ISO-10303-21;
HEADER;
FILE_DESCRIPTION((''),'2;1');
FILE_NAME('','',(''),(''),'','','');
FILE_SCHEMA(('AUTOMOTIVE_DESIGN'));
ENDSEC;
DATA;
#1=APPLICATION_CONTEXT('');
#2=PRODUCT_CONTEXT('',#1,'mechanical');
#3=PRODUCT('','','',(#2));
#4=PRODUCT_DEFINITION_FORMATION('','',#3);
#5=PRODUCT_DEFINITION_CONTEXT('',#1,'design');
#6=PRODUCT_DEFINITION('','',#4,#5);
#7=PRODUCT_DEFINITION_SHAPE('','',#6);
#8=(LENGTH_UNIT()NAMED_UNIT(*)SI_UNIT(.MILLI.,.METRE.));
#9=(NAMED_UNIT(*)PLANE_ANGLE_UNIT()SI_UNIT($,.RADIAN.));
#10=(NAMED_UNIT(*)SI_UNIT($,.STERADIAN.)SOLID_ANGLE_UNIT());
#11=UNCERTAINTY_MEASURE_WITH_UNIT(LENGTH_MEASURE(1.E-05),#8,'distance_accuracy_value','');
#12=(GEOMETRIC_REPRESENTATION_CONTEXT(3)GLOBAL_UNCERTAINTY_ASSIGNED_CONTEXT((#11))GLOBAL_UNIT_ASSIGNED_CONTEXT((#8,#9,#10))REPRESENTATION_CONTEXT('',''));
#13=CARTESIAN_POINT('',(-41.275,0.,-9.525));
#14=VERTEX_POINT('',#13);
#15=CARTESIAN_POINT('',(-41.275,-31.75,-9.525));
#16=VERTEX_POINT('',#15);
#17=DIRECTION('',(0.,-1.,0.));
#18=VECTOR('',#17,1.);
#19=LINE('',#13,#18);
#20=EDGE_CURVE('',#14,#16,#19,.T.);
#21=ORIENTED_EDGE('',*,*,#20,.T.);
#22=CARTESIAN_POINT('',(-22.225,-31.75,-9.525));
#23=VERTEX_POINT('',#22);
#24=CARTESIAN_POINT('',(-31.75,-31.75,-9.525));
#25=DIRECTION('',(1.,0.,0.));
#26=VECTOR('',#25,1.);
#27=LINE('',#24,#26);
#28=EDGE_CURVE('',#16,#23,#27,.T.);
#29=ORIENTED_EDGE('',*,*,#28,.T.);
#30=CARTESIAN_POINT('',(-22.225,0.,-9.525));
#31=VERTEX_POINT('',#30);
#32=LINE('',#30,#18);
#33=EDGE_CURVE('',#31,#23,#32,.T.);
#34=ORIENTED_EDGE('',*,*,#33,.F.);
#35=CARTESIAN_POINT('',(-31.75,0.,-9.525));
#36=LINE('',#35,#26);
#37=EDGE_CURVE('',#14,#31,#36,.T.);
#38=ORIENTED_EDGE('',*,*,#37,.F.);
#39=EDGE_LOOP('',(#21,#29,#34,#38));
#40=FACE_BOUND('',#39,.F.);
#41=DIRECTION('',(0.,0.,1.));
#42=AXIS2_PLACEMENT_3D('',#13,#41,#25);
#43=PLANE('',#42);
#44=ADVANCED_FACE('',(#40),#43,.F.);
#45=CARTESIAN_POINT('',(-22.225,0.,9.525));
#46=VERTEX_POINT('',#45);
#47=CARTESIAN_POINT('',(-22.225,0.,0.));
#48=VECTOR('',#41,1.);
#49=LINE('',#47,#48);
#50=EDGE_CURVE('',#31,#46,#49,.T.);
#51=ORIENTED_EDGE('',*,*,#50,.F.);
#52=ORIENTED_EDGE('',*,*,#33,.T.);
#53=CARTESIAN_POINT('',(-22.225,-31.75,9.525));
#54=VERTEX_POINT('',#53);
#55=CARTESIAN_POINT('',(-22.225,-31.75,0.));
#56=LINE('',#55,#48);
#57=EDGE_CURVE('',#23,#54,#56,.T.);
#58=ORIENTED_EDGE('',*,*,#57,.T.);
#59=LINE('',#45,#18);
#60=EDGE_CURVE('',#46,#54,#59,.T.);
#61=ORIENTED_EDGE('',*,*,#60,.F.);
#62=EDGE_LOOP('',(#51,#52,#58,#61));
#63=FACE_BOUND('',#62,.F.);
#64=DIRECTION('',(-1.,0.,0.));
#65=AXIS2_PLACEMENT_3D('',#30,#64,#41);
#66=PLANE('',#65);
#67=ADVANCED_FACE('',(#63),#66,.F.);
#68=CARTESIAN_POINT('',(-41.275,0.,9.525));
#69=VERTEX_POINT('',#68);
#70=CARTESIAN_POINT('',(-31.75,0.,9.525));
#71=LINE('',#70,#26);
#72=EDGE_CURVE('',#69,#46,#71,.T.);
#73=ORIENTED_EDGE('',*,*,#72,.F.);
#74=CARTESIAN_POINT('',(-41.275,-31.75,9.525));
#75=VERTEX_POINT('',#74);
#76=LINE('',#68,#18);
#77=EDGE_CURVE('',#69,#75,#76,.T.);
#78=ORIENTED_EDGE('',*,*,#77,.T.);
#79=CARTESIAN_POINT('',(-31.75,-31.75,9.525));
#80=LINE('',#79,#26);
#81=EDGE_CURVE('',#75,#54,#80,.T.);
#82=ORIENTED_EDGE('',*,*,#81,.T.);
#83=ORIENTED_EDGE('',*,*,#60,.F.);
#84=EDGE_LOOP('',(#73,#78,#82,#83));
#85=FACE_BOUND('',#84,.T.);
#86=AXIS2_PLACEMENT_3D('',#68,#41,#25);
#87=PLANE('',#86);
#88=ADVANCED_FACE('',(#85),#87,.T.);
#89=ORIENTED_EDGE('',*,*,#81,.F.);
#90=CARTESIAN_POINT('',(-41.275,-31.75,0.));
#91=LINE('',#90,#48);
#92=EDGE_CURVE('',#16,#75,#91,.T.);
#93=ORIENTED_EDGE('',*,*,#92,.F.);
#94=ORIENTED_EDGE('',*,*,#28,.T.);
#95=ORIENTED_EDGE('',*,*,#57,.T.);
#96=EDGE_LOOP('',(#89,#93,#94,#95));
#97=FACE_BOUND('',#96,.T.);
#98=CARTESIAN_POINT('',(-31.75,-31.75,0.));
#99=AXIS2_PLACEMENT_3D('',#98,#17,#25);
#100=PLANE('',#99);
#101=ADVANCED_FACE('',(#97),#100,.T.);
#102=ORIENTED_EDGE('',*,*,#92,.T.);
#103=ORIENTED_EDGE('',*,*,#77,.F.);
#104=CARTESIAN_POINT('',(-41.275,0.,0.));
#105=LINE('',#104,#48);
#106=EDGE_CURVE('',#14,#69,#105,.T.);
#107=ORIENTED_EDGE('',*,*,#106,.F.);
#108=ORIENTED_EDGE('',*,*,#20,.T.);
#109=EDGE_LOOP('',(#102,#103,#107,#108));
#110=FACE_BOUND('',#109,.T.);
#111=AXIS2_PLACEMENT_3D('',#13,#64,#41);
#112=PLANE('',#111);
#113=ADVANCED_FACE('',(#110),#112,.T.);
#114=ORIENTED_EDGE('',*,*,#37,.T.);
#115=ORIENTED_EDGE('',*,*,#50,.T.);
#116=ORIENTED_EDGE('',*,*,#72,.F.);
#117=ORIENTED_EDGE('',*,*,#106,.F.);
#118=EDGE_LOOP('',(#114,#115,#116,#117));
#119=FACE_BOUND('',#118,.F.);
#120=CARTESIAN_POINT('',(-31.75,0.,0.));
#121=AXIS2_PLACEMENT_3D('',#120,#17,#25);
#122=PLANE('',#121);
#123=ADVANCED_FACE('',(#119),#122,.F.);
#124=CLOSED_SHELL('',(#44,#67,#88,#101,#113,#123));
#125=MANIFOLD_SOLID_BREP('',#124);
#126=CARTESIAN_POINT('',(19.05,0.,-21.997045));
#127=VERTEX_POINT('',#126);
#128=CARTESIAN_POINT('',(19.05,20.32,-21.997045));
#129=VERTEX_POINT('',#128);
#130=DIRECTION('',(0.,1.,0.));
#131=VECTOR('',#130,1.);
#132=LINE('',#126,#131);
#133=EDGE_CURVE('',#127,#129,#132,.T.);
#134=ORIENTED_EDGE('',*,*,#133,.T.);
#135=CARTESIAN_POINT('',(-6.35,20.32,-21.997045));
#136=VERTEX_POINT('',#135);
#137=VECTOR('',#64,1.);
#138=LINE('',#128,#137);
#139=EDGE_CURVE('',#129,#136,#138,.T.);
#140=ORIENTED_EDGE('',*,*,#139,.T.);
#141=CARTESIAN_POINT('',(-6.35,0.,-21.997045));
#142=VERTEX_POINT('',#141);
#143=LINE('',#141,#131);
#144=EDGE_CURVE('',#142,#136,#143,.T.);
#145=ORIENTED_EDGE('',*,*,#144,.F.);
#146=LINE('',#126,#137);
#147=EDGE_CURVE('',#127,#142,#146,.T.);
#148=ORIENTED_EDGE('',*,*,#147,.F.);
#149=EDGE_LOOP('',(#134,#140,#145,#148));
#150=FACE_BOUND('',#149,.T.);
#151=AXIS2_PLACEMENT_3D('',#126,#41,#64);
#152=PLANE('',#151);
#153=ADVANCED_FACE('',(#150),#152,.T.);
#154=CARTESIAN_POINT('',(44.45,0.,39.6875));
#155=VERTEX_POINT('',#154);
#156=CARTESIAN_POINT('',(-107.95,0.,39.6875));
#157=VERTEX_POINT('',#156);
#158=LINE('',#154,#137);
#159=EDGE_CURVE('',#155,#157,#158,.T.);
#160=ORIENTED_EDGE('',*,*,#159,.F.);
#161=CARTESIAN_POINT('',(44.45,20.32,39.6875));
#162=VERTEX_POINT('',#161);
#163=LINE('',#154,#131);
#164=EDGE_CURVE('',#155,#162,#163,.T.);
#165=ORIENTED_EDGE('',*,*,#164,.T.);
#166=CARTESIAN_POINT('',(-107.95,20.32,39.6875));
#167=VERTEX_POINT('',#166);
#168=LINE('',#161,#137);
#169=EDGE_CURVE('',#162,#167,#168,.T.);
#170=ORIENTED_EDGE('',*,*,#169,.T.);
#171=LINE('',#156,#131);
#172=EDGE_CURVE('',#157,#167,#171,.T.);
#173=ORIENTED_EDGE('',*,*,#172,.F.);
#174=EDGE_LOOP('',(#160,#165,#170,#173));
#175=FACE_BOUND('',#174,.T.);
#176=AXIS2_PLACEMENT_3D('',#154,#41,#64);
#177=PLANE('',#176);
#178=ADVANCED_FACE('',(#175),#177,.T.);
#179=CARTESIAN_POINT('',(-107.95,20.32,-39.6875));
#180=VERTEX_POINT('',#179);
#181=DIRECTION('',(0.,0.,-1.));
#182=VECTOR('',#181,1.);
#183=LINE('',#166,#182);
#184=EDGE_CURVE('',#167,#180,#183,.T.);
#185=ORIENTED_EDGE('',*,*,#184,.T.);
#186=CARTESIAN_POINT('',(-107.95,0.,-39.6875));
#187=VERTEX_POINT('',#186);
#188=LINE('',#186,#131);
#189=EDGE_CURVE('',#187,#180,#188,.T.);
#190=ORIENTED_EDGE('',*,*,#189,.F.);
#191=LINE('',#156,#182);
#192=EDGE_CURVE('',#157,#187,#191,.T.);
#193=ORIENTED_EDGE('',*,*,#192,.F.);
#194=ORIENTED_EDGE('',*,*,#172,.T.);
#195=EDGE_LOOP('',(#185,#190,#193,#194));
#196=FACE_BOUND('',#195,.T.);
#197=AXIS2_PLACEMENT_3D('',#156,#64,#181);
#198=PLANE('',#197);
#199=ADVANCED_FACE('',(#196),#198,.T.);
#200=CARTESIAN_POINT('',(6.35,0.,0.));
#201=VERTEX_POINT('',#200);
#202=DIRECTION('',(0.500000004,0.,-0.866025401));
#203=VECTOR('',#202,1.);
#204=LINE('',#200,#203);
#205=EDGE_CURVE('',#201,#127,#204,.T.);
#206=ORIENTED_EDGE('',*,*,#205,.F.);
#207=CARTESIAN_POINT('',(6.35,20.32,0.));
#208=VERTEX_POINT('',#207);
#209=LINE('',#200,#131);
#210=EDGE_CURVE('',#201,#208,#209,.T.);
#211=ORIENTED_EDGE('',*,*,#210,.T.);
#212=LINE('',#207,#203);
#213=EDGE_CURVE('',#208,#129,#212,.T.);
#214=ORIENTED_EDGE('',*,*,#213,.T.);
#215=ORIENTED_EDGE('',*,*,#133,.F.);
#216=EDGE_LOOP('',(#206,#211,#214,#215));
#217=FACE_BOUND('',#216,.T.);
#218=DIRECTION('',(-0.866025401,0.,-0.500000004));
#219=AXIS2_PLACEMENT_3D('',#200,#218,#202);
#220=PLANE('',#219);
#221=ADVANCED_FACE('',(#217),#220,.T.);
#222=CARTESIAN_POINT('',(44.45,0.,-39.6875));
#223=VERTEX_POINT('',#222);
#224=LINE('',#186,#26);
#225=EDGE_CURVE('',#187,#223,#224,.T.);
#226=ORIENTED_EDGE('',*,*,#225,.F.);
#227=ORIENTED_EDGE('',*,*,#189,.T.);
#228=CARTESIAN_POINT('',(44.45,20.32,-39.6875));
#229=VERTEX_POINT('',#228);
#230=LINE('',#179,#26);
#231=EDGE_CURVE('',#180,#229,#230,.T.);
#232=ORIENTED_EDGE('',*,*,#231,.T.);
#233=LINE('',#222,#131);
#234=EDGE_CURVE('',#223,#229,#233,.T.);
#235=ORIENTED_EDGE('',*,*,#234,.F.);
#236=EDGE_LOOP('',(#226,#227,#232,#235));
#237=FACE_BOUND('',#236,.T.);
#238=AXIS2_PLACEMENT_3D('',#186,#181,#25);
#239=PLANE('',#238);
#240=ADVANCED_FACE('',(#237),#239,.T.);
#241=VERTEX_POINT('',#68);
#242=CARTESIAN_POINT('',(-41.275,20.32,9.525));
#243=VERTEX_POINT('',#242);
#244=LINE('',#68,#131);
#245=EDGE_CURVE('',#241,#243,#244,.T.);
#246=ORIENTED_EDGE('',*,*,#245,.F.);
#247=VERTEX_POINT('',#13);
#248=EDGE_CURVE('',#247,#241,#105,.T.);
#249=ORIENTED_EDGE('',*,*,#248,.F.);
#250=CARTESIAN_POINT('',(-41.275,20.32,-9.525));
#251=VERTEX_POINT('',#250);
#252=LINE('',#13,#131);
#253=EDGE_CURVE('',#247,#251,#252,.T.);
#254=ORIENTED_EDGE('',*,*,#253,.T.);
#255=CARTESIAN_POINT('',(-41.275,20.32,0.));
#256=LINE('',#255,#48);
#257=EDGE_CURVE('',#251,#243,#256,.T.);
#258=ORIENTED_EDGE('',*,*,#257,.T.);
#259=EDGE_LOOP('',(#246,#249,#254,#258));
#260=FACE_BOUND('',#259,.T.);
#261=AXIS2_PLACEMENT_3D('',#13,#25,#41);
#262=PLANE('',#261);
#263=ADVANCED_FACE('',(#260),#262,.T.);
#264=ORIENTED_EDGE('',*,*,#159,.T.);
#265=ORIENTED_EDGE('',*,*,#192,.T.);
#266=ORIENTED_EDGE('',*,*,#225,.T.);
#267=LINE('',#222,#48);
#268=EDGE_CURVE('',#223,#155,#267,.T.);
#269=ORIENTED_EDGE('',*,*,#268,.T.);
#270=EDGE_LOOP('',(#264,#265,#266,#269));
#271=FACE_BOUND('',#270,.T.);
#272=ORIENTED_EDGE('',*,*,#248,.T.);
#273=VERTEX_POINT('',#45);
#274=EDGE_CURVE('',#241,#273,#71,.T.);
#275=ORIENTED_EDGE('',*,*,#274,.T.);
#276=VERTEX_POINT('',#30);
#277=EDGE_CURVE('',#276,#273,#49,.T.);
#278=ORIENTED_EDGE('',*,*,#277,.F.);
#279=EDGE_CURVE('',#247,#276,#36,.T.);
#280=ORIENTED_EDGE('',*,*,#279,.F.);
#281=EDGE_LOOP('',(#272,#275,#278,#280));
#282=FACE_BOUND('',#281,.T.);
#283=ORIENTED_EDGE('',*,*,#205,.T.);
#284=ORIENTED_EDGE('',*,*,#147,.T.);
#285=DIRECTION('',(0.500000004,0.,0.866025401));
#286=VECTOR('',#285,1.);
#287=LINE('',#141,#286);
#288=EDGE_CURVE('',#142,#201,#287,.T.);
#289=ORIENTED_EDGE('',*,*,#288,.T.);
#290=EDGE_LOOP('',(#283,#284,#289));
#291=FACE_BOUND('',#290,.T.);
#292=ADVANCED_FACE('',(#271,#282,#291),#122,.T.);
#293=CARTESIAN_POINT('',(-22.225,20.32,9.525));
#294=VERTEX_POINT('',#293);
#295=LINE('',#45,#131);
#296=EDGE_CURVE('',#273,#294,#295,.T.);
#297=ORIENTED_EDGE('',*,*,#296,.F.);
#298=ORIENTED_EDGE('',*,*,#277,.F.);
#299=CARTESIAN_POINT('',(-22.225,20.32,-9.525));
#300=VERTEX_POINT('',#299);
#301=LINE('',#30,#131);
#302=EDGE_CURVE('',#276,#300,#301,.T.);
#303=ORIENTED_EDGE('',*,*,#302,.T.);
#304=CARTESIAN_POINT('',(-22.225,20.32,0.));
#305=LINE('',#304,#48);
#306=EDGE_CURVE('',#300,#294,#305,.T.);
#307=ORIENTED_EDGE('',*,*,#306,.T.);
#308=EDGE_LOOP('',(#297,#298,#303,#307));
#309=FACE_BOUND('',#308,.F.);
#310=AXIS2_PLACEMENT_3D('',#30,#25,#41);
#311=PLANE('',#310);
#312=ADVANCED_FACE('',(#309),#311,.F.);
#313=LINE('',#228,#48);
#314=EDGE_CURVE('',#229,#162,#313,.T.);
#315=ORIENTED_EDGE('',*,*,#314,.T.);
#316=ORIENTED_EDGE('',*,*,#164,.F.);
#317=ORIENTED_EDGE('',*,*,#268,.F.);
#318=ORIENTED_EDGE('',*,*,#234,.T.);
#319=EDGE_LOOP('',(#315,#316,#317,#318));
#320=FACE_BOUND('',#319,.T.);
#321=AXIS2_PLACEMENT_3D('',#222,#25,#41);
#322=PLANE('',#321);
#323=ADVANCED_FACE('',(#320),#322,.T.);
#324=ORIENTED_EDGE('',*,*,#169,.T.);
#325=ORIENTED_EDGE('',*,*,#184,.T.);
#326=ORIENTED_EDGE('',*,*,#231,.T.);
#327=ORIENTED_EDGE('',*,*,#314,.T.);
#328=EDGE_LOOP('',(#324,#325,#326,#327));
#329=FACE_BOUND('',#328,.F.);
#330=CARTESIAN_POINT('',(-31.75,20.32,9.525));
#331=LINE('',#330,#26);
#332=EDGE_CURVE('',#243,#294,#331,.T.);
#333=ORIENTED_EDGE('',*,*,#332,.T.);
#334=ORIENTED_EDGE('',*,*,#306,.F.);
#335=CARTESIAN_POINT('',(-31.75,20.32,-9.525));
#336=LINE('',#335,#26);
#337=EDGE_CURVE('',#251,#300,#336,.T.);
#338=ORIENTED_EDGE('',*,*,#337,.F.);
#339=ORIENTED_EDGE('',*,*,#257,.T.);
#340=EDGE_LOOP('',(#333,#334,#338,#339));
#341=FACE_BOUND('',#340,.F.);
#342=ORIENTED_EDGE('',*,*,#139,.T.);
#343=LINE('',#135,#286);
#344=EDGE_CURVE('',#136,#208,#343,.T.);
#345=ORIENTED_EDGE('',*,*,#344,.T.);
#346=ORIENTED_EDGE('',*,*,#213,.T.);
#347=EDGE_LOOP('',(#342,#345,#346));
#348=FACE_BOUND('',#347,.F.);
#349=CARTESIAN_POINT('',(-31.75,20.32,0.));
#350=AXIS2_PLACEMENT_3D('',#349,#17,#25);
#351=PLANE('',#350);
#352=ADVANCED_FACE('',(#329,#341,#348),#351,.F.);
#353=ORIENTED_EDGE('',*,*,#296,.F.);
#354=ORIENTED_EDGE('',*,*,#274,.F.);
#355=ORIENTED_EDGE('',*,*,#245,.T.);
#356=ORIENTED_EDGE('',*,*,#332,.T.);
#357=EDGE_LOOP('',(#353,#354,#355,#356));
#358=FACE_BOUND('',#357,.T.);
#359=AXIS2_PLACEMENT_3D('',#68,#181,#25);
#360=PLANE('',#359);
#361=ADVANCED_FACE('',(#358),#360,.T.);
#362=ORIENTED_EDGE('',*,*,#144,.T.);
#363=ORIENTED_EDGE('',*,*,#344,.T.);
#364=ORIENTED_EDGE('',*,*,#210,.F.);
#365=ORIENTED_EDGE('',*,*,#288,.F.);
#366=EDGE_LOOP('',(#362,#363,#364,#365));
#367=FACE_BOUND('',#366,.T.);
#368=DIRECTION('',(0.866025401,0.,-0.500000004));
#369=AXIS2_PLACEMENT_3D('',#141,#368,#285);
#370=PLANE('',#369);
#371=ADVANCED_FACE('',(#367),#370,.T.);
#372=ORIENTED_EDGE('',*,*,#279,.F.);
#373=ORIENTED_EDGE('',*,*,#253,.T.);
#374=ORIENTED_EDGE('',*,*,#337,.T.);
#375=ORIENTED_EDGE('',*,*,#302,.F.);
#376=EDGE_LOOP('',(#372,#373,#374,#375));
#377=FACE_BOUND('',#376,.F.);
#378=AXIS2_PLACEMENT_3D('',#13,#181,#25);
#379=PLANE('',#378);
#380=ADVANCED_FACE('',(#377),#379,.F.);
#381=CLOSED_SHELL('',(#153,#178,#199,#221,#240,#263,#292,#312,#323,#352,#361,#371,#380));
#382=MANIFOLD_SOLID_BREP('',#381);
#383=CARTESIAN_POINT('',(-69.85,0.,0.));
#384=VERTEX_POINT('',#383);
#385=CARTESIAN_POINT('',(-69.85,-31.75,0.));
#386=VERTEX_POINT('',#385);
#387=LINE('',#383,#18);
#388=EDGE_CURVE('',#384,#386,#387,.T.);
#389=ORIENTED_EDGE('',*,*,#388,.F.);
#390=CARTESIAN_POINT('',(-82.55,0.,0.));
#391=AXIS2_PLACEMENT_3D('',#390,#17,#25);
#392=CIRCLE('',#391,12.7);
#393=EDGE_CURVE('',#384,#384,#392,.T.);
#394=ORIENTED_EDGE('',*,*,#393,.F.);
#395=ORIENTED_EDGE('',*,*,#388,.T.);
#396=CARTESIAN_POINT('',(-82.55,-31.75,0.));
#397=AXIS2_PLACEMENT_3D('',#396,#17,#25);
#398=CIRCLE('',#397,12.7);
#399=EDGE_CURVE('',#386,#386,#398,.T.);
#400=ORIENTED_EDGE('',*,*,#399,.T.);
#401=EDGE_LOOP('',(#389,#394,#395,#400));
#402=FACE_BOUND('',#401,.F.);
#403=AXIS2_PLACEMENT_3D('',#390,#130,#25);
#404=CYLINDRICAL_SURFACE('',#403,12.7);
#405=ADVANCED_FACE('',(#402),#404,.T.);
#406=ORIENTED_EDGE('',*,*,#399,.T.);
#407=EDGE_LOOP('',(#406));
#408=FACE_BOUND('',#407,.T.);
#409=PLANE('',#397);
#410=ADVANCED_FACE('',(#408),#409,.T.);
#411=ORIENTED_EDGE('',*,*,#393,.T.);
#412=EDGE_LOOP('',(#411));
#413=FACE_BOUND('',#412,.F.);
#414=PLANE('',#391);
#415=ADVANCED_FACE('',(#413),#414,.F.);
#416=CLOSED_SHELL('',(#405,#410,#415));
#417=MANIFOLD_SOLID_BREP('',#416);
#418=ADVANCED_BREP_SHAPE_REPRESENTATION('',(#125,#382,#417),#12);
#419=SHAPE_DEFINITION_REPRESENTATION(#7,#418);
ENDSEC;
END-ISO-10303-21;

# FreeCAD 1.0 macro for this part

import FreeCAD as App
import Part
import Sketcher
from FreeCAD import Vector
Q = App.Units.Quantity


def add_polygon(sketch, points):
    """Adds a closed chain of lines whose ends are joined by coincident constraints."""
    first, n = sketch.GeometryCount, len(points)
    for a, b in zip(points, points[1:] + points[:1]):
        sketch.addGeometry(Part.LineSegment(App.Vector(*a, 0), App.Vector(*b, 0)), False)
    for i in range(n):
        sketch.addConstraint(Sketcher.Constraint("Coincident", first + i, 2, first + (i + 1) % n, 1))

doc = App.newDocument("Part")
body = doc.addObject("PartDesign::Body", "Body")

sketch1 = body.newObject("Sketcher::SketchObject", "Sketch")
sketch1.AttachmentSupport = (doc.getObject("XZ_Plane"), [""])
sketch1.MapMode = "FlatFace"
add_polygon(sketch1, [(44, -40), (44, 40), (-108, 40), (-108, -40)])
add_polygon(sketch1, [(19, -22), (-6, -22), (6, 0)])
add_polygon(sketch1, [(-22, -10), (-41, -10), (-41, 10), (-22, 10)])
sketch1.addConstraint([
    Sketcher.Constraint("Vertical", 0),
    Sketcher.Constraint("Horizontal", 1),
    Sketcher.Constraint("Vertical", 2),
    Sketcher.Constraint("Horizontal", 3),
    Sketcher.Constraint("Horizontal", 4),
    Sketcher.Constraint("Horizontal", 7),
    Sketcher.Constraint("Vertical", 8),
    Sketcher.Constraint("Horizontal", 9),
    Sketcher.Constraint("Vertical", 10),
    Sketcher.Constraint("PointOnObject", 5, 2, -1),
    Sketcher.Constraint("Equal", 9, 8),
    Sketcher.Constraint("Equal", 5, 6),
    Sketcher.Constraint("DistanceX", 1, 2, 1, 1, Q("6 in")),
    Sketcher.Constraint("DistanceX", 4, 2, 4, 1, Q("1 in")),
    Sketcher.Constraint("Distance", 5, Q("1 in")),
    Sketcher.Constraint("DistanceX", 4, 2, 3, 2, Q("2 in")),
    Sketcher.Constraint("DistanceX", 7, 2, 7, 1, Q("0.75 in")),
    Sketcher.Constraint("DistanceY", 0, 1, 0, 2, Q("3.125 in")),
    Sketcher.Constraint("DistanceX", -1, 1, 0, 2, Q("1.75 in")),
    Sketcher.Constraint("DistanceY", -1, 1, 0, 2, Q("1.5625 in")),
    Sketcher.Constraint("DistanceX", 7, 2, -1, 1, Q("1.625 in")),
    Sketcher.Constraint("DistanceY", 7, 2, -1, 1, Q("0.375 in")),
])
pad1 = body.newObject("PartDesign::Pad", "Pad")
pad1.Profile = sketch1
pad1.Length = Q("0.8 in")
pad1.Reversed = True
body2 = doc.addObject("PartDesign::Body", "Body001")
body2.AllowCompound = True

sketch2 = body2.newObject("Sketcher::SketchObject", "Sketch001")
sketch2.AttachmentSupport = (doc.getObject("XZ_Plane001"), [""])
sketch2.MapMode = "FlatFace"
sketch2.addGeometry(Part.Circle(Vector(-83, 0, 0), Vector(0, 0, 1), 13), False)
add_polygon(sketch2, [(-41, 10), (-41, -10), (-22, -10), (-22, 10)])
sketch2.addConstraint([
    Sketcher.Constraint("Vertical", 1),
    Sketcher.Constraint("Horizontal", 2),
    Sketcher.Constraint("Vertical", 3),
    Sketcher.Constraint("Horizontal", 4),
    Sketcher.Constraint("PointOnObject", 0, 3, -1),
    Sketcher.Constraint("Equal", 4, 1),
    Sketcher.Constraint("Diameter", 0, Q("1 in")),
    Sketcher.Constraint("DistanceX", 2, 1, 2, 2, Q("0.75 in")),
    Sketcher.Constraint("DistanceX", 0, 3, -1, 1, Q("3.25 in")),
    Sketcher.Constraint("DistanceX", 1, 2, -1, 1, Q("1.625 in")),
    Sketcher.Constraint("DistanceY", 1, 2, -1, 1, Q("0.375 in")),
])
pad2 = body2.newObject("PartDesign::Pad", "Pad001")
pad2.Profile = sketch2
pad2.Length = Q("1.25 in")

doc.recompute()
